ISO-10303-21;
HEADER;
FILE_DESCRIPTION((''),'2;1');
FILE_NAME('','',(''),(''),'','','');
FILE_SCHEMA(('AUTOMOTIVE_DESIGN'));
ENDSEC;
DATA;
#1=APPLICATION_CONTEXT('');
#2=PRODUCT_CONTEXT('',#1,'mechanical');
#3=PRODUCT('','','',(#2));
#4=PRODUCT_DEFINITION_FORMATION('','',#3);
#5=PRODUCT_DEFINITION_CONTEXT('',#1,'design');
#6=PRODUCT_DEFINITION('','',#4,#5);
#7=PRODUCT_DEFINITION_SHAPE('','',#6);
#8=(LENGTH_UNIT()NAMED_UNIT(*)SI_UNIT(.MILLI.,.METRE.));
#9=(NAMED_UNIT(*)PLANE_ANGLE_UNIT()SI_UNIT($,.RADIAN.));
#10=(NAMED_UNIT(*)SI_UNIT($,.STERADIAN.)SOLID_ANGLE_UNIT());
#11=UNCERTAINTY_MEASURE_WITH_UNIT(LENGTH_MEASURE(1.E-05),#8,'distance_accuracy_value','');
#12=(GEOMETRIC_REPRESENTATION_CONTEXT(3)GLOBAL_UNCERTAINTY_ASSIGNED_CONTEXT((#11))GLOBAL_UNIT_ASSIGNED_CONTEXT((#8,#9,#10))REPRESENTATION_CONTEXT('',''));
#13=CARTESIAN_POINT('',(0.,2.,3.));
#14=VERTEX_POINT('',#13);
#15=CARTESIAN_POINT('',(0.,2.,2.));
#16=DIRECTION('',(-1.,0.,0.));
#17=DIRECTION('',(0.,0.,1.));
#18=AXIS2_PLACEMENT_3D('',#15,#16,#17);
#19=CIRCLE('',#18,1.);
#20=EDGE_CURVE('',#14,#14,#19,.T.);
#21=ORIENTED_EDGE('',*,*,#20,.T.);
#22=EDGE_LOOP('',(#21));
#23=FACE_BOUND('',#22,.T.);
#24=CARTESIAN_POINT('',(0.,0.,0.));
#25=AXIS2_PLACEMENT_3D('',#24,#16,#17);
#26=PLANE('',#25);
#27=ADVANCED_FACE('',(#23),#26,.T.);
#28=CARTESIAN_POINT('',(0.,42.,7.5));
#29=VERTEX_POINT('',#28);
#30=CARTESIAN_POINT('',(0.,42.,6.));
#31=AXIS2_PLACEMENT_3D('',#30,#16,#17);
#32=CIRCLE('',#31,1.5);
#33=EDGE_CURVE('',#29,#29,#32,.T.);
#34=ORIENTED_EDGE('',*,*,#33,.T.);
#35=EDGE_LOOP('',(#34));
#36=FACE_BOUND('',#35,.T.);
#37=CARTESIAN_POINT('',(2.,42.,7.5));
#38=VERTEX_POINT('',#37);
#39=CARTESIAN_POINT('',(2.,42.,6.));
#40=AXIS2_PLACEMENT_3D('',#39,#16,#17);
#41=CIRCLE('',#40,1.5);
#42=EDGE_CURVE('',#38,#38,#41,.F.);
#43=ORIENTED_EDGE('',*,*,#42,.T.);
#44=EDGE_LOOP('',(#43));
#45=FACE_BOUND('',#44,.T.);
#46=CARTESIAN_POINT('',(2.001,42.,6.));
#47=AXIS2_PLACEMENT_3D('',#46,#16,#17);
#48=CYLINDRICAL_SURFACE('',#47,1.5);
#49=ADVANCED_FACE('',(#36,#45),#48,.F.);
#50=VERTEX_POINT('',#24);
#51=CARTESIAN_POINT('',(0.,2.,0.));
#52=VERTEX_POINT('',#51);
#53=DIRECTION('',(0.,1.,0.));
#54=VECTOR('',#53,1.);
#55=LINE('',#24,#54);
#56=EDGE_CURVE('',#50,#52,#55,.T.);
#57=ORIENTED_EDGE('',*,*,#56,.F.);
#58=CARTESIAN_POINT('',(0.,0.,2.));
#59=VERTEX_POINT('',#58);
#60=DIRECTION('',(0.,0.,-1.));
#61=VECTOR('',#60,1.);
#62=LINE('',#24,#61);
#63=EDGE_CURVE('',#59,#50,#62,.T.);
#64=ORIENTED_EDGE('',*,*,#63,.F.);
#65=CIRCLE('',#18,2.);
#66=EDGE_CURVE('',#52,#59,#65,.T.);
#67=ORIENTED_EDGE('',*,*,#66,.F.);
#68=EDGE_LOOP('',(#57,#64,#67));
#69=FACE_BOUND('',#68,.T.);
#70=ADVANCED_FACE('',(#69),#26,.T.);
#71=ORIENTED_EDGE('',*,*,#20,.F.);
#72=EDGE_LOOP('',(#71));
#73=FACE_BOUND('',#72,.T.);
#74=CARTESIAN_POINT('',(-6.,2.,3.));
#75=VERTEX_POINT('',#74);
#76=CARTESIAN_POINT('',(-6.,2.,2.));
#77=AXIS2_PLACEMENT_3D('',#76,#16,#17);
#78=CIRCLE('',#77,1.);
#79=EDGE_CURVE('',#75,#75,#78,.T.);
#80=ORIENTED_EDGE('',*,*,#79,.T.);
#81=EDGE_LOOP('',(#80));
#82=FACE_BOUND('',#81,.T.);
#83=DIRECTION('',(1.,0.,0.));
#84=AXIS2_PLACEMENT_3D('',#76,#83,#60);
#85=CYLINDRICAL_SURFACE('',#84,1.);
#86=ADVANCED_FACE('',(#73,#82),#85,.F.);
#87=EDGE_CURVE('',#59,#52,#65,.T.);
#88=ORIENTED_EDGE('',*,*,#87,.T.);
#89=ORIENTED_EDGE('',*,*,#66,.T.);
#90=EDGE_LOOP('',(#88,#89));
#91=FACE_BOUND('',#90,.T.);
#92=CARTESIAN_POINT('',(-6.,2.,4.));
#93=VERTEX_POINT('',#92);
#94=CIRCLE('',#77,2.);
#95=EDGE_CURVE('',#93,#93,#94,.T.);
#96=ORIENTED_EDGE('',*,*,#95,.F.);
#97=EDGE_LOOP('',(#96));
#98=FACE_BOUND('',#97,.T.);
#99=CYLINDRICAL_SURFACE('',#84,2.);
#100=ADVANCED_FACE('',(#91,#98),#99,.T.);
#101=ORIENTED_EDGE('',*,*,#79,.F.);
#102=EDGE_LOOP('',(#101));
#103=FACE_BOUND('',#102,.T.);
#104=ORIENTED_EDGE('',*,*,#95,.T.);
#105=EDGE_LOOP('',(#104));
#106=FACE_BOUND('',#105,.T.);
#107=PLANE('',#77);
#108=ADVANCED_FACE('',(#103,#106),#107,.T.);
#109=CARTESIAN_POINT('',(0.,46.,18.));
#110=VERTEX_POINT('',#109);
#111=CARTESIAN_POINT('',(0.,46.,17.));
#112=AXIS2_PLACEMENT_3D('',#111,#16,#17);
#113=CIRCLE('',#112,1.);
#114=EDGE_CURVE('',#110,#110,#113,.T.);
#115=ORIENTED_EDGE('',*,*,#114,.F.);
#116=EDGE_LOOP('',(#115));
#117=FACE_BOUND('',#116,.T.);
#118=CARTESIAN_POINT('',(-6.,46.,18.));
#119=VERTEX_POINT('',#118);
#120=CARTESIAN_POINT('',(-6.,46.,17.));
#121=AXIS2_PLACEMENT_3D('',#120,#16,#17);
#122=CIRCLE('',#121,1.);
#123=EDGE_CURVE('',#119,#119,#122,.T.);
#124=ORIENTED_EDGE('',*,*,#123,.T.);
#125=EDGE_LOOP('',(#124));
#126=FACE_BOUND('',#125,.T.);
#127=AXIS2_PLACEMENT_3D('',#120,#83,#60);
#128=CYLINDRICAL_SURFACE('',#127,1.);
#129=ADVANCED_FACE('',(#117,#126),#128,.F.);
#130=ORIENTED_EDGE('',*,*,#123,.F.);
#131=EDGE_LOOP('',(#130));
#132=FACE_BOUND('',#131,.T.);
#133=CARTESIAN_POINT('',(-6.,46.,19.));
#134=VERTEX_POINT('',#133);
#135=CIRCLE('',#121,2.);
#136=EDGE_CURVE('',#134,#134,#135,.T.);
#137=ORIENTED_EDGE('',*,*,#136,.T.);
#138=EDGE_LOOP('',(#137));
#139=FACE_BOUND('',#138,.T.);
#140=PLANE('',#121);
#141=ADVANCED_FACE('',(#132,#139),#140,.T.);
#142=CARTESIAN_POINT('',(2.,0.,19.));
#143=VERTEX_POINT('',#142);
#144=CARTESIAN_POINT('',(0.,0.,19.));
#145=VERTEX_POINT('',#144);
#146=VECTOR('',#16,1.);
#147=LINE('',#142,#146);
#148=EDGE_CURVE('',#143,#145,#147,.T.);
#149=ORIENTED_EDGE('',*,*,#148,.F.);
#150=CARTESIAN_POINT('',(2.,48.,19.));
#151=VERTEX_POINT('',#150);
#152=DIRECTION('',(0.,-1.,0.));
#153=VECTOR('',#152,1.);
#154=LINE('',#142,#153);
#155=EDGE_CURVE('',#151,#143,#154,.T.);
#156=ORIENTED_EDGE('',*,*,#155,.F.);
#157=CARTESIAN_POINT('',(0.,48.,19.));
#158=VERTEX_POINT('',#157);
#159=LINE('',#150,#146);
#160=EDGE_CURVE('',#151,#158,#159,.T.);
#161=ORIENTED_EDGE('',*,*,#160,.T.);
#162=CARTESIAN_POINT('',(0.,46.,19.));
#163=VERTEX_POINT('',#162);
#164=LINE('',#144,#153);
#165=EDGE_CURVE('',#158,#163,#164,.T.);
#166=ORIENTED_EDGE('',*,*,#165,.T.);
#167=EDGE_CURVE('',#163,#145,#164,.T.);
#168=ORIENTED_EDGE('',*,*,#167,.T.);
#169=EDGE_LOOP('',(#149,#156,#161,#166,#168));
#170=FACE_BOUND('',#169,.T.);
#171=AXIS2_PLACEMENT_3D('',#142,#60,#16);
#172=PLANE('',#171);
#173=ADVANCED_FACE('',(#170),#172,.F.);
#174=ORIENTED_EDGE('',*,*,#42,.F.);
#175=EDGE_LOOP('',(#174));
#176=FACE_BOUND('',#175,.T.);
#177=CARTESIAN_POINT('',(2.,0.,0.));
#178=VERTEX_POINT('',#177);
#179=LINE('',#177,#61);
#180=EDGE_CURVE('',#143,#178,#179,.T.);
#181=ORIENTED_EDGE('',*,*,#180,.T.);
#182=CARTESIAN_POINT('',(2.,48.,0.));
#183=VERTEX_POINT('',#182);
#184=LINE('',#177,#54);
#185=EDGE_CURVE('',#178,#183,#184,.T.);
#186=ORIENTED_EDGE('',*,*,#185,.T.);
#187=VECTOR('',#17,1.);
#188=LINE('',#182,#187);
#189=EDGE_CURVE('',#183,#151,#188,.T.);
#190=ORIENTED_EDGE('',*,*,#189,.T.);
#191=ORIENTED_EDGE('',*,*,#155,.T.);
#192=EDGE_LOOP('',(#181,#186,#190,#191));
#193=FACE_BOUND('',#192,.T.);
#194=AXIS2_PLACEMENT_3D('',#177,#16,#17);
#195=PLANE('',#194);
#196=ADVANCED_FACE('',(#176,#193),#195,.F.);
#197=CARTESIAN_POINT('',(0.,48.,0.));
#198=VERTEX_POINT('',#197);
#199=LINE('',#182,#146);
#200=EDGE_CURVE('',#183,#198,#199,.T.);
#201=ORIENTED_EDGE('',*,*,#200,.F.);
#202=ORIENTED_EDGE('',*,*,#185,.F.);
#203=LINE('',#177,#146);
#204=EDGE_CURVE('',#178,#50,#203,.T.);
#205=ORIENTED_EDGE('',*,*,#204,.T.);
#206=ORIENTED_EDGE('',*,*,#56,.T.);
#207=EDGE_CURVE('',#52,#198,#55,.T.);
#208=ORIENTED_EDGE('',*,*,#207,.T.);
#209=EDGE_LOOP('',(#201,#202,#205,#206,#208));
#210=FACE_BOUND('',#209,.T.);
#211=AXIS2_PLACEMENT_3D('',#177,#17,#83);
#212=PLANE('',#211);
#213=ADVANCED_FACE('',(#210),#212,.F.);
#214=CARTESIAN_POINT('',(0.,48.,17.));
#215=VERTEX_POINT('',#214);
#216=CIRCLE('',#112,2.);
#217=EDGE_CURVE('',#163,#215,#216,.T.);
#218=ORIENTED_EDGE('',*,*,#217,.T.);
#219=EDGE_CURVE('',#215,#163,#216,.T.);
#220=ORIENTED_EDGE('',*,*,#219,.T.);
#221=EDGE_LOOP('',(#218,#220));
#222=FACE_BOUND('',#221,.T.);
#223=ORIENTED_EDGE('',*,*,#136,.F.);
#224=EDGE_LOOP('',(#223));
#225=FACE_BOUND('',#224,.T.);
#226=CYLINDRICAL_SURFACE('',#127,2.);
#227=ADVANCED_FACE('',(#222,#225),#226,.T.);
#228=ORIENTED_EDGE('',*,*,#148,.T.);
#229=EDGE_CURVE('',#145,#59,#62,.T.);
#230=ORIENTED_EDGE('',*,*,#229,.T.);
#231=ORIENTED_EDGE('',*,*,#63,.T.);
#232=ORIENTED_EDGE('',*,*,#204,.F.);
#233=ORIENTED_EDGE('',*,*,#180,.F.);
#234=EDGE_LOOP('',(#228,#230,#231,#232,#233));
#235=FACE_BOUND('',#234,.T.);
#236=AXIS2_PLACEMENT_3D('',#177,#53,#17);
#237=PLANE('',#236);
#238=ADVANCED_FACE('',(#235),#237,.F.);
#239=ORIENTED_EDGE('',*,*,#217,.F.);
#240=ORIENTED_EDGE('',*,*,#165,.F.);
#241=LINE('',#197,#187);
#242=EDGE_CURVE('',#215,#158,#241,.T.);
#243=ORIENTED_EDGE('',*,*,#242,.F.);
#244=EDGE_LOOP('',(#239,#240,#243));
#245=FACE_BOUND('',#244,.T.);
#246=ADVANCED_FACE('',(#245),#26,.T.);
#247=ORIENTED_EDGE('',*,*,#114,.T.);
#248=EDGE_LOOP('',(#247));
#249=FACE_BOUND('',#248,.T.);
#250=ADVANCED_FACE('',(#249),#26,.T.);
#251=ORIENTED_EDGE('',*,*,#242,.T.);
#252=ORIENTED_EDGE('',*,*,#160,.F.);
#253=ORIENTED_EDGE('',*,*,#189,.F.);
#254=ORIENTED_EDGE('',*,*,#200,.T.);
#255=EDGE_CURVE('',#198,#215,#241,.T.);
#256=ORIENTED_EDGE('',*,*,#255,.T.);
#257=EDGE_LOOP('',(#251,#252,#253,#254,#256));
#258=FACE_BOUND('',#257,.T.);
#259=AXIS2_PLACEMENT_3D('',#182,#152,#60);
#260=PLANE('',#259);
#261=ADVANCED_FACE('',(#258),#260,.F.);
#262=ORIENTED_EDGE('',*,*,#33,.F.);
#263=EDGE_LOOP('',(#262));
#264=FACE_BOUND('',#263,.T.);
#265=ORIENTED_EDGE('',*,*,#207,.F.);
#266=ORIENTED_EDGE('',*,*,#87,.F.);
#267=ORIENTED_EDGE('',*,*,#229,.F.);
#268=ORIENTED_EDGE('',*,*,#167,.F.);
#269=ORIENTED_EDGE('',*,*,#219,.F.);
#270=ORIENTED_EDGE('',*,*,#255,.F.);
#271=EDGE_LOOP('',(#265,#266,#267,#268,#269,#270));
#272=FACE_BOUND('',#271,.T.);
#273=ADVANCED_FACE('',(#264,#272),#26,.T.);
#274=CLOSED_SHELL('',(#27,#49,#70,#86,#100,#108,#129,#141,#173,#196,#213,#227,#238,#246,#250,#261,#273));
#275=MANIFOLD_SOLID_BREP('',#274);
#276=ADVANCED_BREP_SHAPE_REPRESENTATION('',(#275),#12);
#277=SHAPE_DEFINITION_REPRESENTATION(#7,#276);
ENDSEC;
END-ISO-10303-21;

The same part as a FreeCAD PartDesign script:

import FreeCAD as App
import Part
import Sketcher

V = App.Vector


def add_polygon(sketch, points):
    """Adds a closed chain of lines whose ends are joined by coincident constraints."""
    first, n = sketch.GeometryCount, len(points)
    for a, b in zip(points, points[1:] + points[:1]):
        sketch.addGeometry(Part.LineSegment(App.Vector(*a, 0), App.Vector(*b, 0)), False)
    for i in range(n):
        sketch.addConstraint(Sketcher.Constraint("Coincident", first + i, 2, first + (i + 1) % n, 1))

doc = App.newDocument("Part")
body = doc.addObject("PartDesign::Body", "Body")

# Sketch on YZ plane
sketch1 = doc.addObject("Sketcher::SketchObject", "Sketch")
body.addObject(sketch1)
sketch1.AttachmentSupport = (doc.YZ_Plane, [""])
sketch1.MapMode = "FlatFace"
add_polygon(sketch1, [(0, 19), (0, 0), (48, 0), (48, 19)])  # lines 0-3
sketch1.addConstraint([
    Sketcher.Constraint("Vertical", 0),
    Sketcher.Constraint("Horizontal", 1),
    Sketcher.Constraint("Vertical", 2),
    Sketcher.Constraint("Horizontal", 3),
    Sketcher.Constraint("Coincident", 0, 2, -1, 1),
    Sketcher.Constraint("DistanceX", 1, 1, 1, 2, 48.0),
    Sketcher.Constraint("DistanceY", 0, 2, 0, 1, 19.0),
])
pad1 = doc.addObject("PartDesign::Pad", "Pad")
body.addObject(pad1)
pad1.Profile = sketch1
pad1.Length = 2

# Sketch on YZ plane
sketch2 = doc.addObject("Sketcher::SketchObject", "Sketch001")
body.addObject(sketch2)
sketch2.AttachmentSupport = (doc.YZ_Plane, [""])
sketch2.MapMode = "FlatFace"
sketch2.addGeometry([
    Part.Circle(V(46, 17, 0), V(0, 0, 1), 2),
    Part.Circle(V(46, 17, 0), V(0, 0, 1), 1),
    Part.Circle(V(2, 2, 0), V(0, 0, 1), 2),
    Part.Circle(V(2, 2, 0), V(0, 0, 1), 1),
], False)
sketch2.addConstraint([
    Sketcher.Constraint("Coincident", 1, 3, 0, 3),
    Sketcher.Constraint("Coincident", 3, 3, 2, 3),
    Sketcher.Constraint("Equal", 0, 2),
    Sketcher.Constraint("Equal", 1, 3),
    Sketcher.Constraint("Diameter", 0, 4.0),
    Sketcher.Constraint("Diameter", 1, 2.0),
    Sketcher.Constraint("DistanceX", -1, 1, 0, 3, 46.0),
    Sketcher.Constraint("DistanceY", -1, 1, 0, 3, 17.0),
    Sketcher.Constraint("DistanceX", -1, 1, 2, 3, 2.0),
    Sketcher.Constraint("DistanceY", -1, 1, 2, 3, 2.0),
])
pad2 = doc.addObject("PartDesign::Pad", "Pad001")
body.addObject(pad2)
pad2.Profile = sketch2
pad2.Length = 6
pad2.Reversed = True

# Sketch on YZ plane
sketch3 = doc.addObject("Sketcher::SketchObject", "Sketch002")
body.addObject(sketch3)
sketch3.AttachmentSupport = (doc.YZ_Plane, [""])
sketch3.MapMode = "FlatFace"
sketch3.addGeometry(Part.Circle(V(42, 6, 0), V(0, 0, 1), 1.5), False)
sketch3.addConstraint([
    Sketcher.Constraint("Diameter", 0, 3.0),
    Sketcher.Constraint("DistanceX", -1, 1, 0, 3, 42.0),
    Sketcher.Constraint("DistanceY", -1, 1, 0, 3, 6.0),
])
pocket1 = doc.addObject("PartDesign::Pocket", "Pocket")
body.addObject(pocket1)
pocket1.Profile = sketch3
pocket1.Type = "UpToFirst"
pocket1.Reversed = True

doc.recompute()
